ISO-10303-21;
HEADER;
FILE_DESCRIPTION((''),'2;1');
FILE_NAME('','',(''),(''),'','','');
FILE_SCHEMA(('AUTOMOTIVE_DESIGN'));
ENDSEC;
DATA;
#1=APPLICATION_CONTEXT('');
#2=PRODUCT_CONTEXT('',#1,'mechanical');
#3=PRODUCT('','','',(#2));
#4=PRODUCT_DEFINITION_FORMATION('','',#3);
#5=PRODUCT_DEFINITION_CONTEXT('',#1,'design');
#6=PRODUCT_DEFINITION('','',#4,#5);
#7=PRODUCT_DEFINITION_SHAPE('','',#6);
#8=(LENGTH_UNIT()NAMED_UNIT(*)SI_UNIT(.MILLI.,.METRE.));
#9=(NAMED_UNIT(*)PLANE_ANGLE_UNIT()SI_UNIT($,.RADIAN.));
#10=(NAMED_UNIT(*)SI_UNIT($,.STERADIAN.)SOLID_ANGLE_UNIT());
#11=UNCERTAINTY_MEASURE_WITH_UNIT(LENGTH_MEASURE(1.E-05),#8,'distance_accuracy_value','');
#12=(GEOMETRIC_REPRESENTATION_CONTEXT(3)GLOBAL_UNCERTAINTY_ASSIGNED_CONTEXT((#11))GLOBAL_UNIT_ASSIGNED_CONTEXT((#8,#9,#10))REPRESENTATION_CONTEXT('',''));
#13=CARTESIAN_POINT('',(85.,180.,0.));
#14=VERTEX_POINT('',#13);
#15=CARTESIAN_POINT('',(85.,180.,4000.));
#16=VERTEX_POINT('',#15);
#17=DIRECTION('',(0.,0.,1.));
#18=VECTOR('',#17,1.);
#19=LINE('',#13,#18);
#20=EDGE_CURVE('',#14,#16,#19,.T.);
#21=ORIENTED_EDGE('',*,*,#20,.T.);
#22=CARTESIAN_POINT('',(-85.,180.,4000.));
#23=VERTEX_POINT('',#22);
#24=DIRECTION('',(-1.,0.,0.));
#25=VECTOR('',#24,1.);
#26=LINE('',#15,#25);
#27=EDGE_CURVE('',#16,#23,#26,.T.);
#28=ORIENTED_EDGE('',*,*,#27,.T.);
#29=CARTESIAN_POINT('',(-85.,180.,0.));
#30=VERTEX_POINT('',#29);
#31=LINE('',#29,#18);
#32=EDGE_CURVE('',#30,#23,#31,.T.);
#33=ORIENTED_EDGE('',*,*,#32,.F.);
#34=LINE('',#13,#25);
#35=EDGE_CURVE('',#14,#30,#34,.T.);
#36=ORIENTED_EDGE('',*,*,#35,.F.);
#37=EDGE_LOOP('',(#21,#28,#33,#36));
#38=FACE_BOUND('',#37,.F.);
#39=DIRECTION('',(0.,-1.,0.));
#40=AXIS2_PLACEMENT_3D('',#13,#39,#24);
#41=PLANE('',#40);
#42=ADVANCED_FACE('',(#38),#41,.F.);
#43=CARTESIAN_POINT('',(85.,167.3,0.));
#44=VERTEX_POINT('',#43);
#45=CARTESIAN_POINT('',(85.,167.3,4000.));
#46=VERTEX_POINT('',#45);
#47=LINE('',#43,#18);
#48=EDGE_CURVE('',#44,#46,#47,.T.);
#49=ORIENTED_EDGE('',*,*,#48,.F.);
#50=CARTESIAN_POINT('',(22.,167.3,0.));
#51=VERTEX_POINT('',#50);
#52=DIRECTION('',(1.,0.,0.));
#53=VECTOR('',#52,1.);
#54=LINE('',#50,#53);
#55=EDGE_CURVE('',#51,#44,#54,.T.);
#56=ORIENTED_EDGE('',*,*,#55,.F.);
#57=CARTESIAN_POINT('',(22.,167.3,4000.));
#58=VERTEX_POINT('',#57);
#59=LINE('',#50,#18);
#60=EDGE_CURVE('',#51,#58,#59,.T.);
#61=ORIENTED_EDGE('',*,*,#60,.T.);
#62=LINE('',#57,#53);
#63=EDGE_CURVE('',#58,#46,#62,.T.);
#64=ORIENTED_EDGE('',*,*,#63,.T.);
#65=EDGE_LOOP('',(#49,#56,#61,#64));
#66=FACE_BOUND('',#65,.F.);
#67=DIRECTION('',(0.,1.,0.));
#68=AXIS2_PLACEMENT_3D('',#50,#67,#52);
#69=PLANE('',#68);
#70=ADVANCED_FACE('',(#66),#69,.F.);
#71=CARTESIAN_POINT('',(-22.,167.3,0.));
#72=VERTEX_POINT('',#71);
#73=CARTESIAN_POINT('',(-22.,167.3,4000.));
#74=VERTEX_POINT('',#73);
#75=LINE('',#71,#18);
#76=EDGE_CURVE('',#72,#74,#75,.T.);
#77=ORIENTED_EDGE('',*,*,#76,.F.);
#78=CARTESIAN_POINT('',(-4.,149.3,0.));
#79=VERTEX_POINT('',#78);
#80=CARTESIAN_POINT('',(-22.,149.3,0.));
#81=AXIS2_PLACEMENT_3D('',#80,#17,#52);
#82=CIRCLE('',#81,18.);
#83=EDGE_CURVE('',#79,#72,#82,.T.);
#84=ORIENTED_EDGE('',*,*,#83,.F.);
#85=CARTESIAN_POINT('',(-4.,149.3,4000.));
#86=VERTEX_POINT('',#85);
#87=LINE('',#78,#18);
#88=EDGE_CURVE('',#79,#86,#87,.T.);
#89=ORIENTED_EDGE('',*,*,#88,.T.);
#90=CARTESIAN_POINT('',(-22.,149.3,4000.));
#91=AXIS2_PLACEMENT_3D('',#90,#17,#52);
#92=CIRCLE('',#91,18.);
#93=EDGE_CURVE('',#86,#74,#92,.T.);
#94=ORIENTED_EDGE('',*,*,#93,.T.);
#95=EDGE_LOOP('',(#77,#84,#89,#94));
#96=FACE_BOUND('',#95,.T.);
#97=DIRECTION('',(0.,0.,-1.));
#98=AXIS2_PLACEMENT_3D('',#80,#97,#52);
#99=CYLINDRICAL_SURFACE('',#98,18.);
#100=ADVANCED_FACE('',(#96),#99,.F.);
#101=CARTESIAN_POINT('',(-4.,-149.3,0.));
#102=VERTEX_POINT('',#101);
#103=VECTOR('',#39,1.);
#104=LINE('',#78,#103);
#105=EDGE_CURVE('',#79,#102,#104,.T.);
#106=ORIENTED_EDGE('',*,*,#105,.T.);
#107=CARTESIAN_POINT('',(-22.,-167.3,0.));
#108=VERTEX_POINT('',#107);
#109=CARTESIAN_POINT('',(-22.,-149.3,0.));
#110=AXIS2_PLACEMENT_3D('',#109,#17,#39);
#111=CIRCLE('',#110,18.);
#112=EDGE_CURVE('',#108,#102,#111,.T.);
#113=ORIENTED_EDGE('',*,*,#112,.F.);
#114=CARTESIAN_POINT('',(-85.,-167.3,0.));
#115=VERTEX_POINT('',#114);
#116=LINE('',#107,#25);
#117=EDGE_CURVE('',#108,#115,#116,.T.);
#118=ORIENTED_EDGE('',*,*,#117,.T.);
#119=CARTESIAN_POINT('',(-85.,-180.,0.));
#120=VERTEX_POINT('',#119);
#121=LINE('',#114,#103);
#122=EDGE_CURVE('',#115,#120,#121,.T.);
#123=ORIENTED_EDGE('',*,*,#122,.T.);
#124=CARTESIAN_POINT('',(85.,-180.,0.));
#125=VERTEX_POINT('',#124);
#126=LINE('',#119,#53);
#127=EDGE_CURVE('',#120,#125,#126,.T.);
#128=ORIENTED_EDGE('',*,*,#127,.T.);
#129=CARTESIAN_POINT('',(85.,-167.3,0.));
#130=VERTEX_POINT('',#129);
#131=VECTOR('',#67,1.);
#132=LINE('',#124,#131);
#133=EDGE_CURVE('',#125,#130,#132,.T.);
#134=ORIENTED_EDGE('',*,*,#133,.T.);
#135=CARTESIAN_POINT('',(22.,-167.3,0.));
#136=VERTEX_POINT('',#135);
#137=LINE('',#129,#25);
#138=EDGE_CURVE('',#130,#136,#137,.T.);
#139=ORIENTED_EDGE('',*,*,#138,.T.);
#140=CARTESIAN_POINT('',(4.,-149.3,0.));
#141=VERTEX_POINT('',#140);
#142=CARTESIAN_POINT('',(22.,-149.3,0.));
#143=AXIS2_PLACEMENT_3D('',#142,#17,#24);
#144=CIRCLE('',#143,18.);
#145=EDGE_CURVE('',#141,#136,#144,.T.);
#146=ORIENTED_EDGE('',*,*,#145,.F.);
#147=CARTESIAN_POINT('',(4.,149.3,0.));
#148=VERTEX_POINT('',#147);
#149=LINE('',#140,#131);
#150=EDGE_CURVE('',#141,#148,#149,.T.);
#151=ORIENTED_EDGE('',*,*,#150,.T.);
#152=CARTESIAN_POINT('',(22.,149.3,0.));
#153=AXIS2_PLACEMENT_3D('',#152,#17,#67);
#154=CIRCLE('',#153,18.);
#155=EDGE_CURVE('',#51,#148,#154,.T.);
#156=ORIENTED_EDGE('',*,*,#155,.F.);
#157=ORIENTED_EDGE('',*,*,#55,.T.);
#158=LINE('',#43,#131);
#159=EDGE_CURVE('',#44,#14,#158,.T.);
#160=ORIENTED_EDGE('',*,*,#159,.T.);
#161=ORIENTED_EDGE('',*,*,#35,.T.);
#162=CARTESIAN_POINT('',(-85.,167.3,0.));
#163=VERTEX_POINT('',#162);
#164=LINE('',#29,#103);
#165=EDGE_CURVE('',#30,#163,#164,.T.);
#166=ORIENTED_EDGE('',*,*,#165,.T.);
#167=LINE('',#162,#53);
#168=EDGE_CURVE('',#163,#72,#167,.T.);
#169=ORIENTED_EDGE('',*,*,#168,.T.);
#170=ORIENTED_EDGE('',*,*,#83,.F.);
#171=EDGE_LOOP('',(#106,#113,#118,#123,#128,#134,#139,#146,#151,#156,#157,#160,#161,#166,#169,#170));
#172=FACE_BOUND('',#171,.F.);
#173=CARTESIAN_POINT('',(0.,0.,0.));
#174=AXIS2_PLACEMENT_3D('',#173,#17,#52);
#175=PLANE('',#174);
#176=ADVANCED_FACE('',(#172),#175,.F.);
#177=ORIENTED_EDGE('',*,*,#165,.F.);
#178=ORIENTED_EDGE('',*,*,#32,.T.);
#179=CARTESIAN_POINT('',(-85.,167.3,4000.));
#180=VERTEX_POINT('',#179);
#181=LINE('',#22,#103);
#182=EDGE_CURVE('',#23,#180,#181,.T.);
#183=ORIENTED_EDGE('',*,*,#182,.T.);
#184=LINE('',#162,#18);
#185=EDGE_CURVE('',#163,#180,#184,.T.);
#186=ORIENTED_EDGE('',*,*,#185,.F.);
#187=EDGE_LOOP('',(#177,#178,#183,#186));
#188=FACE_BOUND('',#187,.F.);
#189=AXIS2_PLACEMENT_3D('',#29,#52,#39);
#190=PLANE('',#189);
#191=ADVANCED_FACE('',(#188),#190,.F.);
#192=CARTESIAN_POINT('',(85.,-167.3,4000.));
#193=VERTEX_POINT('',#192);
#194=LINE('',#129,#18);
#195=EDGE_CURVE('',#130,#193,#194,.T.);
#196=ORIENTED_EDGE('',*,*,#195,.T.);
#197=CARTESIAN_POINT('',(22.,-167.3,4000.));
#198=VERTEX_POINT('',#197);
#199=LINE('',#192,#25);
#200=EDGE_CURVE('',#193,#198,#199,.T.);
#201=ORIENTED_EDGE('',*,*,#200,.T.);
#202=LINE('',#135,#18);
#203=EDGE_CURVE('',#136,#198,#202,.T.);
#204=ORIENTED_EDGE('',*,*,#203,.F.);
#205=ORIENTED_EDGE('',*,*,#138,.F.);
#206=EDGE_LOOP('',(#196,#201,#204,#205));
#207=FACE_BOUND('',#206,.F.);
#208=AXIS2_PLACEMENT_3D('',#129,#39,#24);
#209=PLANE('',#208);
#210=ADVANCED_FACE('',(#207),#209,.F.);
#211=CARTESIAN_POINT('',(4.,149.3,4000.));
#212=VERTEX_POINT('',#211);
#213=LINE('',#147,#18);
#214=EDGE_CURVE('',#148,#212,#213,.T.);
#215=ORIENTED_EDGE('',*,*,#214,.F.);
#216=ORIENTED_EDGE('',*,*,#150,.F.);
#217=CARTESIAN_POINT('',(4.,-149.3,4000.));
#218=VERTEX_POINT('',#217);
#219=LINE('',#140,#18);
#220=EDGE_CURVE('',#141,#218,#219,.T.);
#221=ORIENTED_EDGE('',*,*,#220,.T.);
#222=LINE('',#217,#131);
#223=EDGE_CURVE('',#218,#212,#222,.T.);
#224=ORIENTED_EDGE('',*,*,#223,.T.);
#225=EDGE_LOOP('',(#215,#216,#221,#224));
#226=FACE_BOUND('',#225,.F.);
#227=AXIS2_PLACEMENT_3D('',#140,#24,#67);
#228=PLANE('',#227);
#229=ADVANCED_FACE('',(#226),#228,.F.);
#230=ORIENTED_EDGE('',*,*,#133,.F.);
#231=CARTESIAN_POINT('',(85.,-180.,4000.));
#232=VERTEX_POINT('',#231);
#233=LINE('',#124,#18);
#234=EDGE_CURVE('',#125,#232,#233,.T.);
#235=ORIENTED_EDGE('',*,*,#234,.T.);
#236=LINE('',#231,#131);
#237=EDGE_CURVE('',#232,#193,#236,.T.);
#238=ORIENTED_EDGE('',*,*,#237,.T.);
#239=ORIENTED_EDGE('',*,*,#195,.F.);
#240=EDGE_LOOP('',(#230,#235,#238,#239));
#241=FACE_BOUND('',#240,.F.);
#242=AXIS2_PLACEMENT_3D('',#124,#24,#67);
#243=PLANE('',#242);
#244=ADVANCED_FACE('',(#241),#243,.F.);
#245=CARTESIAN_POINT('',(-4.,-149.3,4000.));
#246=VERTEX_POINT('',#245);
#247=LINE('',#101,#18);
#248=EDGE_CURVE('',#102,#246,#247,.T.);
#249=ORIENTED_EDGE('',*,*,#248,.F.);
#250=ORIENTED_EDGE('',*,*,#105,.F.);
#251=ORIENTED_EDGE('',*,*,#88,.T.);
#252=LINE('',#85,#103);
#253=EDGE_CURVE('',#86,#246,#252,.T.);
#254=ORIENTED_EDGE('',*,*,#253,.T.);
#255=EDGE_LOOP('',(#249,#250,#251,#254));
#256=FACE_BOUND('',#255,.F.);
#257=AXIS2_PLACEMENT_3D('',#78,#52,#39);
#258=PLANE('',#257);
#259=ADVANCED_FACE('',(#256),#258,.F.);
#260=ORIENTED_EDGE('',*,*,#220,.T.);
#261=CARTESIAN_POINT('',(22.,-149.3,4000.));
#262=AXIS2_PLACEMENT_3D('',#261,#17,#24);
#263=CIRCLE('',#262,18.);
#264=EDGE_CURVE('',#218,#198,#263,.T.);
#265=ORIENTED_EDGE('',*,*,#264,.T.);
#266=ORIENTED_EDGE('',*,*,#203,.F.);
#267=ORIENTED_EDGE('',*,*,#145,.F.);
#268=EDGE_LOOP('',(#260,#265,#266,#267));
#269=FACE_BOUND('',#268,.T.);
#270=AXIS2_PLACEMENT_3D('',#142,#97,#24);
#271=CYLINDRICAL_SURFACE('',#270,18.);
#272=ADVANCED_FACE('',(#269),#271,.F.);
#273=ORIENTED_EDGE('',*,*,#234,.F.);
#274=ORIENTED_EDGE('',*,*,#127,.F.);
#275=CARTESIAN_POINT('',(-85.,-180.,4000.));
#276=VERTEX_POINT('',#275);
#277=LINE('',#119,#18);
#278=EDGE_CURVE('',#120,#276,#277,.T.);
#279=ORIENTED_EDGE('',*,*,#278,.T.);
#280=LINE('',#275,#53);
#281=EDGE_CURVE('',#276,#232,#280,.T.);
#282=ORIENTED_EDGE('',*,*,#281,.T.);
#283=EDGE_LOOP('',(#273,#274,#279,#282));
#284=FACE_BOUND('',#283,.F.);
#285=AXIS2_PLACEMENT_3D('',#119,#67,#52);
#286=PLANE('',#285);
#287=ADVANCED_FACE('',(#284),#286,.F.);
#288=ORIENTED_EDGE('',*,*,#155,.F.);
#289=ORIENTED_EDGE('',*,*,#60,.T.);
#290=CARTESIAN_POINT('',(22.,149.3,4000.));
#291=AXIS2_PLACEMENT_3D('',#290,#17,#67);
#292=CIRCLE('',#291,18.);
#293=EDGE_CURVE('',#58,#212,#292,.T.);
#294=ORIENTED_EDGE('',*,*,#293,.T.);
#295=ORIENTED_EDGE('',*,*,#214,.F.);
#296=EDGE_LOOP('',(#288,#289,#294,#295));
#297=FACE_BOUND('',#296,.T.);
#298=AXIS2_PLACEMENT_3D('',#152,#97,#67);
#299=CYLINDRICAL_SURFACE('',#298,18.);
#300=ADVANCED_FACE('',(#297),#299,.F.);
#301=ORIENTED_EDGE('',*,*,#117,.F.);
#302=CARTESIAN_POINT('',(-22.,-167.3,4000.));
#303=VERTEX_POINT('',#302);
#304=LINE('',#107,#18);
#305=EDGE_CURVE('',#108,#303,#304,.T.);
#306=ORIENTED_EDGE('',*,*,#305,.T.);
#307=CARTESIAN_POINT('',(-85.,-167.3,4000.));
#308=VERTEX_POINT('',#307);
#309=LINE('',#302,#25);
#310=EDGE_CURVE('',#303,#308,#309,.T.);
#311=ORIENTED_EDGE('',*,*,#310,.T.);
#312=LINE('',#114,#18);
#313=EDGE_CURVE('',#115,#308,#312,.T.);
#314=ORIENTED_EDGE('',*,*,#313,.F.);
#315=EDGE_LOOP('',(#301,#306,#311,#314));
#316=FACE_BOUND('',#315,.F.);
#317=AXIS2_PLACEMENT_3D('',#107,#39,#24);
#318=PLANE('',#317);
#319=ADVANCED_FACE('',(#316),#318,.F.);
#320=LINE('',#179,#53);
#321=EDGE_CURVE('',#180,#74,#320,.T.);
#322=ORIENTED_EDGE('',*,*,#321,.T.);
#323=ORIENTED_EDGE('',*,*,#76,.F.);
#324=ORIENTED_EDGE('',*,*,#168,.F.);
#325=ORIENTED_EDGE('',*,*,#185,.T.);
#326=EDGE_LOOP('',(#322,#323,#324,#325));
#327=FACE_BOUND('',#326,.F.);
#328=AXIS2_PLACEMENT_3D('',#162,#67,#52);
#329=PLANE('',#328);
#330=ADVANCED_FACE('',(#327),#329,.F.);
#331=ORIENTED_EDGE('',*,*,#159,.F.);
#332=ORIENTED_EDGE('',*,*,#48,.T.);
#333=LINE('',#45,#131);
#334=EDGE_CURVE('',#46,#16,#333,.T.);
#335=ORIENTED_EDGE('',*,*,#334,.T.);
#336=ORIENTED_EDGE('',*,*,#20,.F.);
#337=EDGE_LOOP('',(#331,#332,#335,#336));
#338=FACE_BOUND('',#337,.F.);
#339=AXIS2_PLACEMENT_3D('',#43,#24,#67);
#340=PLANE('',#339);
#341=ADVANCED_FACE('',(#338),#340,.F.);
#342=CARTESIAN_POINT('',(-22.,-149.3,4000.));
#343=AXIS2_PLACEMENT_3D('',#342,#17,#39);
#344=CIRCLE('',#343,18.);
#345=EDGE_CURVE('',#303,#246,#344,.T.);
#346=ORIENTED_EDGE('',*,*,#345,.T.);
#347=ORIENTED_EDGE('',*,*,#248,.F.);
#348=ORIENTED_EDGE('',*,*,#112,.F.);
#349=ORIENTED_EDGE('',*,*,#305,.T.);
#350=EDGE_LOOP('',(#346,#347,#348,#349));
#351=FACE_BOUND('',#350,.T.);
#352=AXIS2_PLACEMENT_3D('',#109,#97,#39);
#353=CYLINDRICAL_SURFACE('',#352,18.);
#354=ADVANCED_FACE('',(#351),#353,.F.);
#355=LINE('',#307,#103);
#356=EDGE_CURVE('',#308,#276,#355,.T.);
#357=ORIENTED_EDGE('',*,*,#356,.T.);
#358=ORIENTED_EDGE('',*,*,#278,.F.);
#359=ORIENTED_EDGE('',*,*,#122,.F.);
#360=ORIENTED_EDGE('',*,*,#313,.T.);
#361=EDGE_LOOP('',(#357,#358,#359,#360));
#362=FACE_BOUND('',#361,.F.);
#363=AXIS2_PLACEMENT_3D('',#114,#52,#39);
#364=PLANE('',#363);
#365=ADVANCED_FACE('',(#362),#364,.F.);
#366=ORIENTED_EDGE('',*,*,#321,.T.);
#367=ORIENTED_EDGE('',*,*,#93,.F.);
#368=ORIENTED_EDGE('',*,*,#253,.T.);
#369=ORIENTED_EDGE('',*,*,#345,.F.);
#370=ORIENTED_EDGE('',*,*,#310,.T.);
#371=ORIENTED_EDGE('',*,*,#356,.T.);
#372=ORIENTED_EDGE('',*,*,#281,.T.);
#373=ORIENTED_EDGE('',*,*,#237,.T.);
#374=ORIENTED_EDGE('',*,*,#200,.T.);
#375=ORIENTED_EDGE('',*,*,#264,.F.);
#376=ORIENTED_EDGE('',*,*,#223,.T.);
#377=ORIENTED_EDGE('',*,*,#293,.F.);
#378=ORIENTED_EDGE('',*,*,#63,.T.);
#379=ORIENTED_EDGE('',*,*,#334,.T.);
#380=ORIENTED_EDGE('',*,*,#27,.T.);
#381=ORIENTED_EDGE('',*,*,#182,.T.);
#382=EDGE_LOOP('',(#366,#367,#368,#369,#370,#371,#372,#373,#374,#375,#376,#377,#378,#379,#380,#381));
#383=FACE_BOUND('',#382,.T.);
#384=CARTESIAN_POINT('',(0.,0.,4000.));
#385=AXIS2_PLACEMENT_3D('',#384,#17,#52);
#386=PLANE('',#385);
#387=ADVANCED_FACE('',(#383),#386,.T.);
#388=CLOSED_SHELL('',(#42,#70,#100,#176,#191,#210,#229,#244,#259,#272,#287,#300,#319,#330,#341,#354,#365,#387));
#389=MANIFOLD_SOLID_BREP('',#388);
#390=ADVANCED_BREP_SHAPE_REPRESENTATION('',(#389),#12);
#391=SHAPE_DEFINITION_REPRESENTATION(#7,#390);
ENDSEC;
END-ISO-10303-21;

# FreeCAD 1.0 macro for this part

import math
import FreeCAD as App
import Part
import Sketcher
from FreeCAD import Vector

doc = App.newDocument("Part")
params = doc.addObject("Spreadsheet::Sheet", "Params")
for row, (alias, value) in enumerate([
    ("sketch1_radius", "18 mm"),
    ("sketch1_width", "170 mm"),
    ("sketch1_height", "12.7 mm"),
    ("pad1_length", "4000 mm"),
], start=1):
    params.set(f"A{row}", alias)
    params.set(f"B{row}", "=" + value)
    params.setAlias(f"B{row}", alias)

body = doc.addObject("PartDesign::Body", "Body")

# Sketch on XY plane
sketch1 = body.newObject("Sketcher::SketchObject", "Sketch")
sketch1.AttachmentSupport = (doc.getObject("XY_Plane"), [""])
sketch1.MapMode = "FlatFace"
sketch1.addGeometry(Part.LineSegment(Vector(-85, 180, 0), Vector(-85, 167, 0)), False)
sketch1.addGeometry(Part.LineSegment(Vector(-85, 167, 0), Vector(-22, 167, 0)), False)
sketch1.addGeometry(Part.ArcOfCircle(Part.Circle(Vector(-22, 149, 0), Vector(0, 0, 1), 18), math.radians(0), math.radians(90)), False)
sketch1.addGeometry(Part.LineSegment(Vector(-4, 149, 0), Vector(-4, -149, 0)), False)
sketch1.addGeometry(Part.ArcOfCircle(Part.Circle(Vector(-22, -149, 0), Vector(0, 0, 1), 18), math.radians(-90), math.radians(0)), False)
sketch1.addGeometry(Part.LineSegment(Vector(-22, -167, 0), Vector(-85, -167, 0)), False)
sketch1.addGeometry(Part.LineSegment(Vector(-85, -167, 0), Vector(-85, -180, 0)), False)
sketch1.addGeometry(Part.LineSegment(Vector(-85, -180, 0), Vector(85, -180, 0)), False)
sketch1.addGeometry(Part.LineSegment(Vector(85, -180, 0), Vector(85, -167, 0)), False)
sketch1.addGeometry(Part.LineSegment(Vector(85, -167, 0), Vector(22, -167, 0)), False)
sketch1.addGeometry(Part.ArcOfCircle(Part.Circle(Vector(22, -149, 0), Vector(0, 0, 1), 18), math.radians(180), math.radians(270)), False)
sketch1.addGeometry(Part.LineSegment(Vector(4, -149, 0), Vector(4, 149, 0)), False)
sketch1.addGeometry(Part.ArcOfCircle(Part.Circle(Vector(22, 149, 0), Vector(0, 0, 1), 18), math.radians(90), math.radians(180)), False)
sketch1.addGeometry(Part.LineSegment(Vector(22, 167, 0), Vector(85, 167, 0)), False)
sketch1.addGeometry(Part.LineSegment(Vector(85, 167, 0), Vector(85, 180, 0)), False)
sketch1.addGeometry(Part.LineSegment(Vector(85, 180, 0), Vector(-85, 180, 0)), False)
sketch1.addConstraint(Sketcher.Constraint("Coincident", 0, 2, 1, 1))
sketch1.addConstraint(Sketcher.Constraint("Tangent", 1, 2, 2, 2))
sketch1.addConstraint(Sketcher.Constraint("Tangent", 2, 1, 3, 1))
sketch1.addConstraint(Sketcher.Constraint("Tangent", 3, 2, 4, 2))
sketch1.addConstraint(Sketcher.Constraint("Tangent", 4, 1, 5, 1))
sketch1.addConstraint(Sketcher.Constraint("Coincident", 5, 2, 6, 1))
sketch1.addConstraint(Sketcher.Constraint("Coincident", 6, 2, 7, 1))
sketch1.addConstraint(Sketcher.Constraint("Coincident", 7, 2, 8, 1))
sketch1.addConstraint(Sketcher.Constraint("Coincident", 8, 2, 9, 1))
sketch1.addConstraint(Sketcher.Constraint("Tangent", 9, 2, 10, 2))
sketch1.addConstraint(Sketcher.Constraint("Tangent", 10, 1, 11, 1))
sketch1.addConstraint(Sketcher.Constraint("Tangent", 11, 2, 12, 2))
sketch1.addConstraint(Sketcher.Constraint("Tangent", 12, 1, 13, 1))
sketch1.addConstraint(Sketcher.Constraint("Coincident", 13, 2, 14, 1))
sketch1.addConstraint(Sketcher.Constraint("Coincident", 14, 2, 15, 1))
sketch1.addConstraint(Sketcher.Constraint("Coincident", 15, 2, 0, 1))
sketch1.addConstraint(Sketcher.Constraint("Vertical", 0))
sketch1.addConstraint(Sketcher.Constraint("Horizontal", 1))
sketch1.addConstraint(Sketcher.Constraint("Vertical", 3))
sketch1.addConstraint(Sketcher.Constraint("Horizontal", 5))
sketch1.addConstraint(Sketcher.Constraint("Vertical", 6))
sketch1.addConstraint(Sketcher.Constraint("Horizontal", 7))
sketch1.addConstraint(Sketcher.Constraint("Vertical", 8))
sketch1.addConstraint(Sketcher.Constraint("Horizontal", 9))
sketch1.addConstraint(Sketcher.Constraint("Vertical", 11))
sketch1.addConstraint(Sketcher.Constraint("Horizontal", 13))
sketch1.addConstraint(Sketcher.Constraint("Vertical", 14))
sketch1.addConstraint(Sketcher.Constraint("Horizontal", 15))
sketch1.addConstraint(Sketcher.Constraint("Equal", 2, 4))
sketch1.addConstraint(Sketcher.Constraint("Equal", 4, 10))
sketch1.addConstraint(Sketcher.Constraint("Equal", 10, 12))
sketch1.addConstraint(Sketcher.Constraint("Symmetric", 2, 3, 10, 3, -1, 1))
sketch1.addConstraint(Sketcher.Constraint("Symmetric", 5, 2, 13, 2, -1, 1))
sketch1.addConstraint(Sketcher.Constraint("Symmetric", 7, 2, 15, 2, -1, 1))
sketch1.addConstraint(Sketcher.Constraint("Symmetric", 5, 2, 8, 2, -2))
sketch1.addConstraint(Sketcher.Constraint("Radius", 2, 18.0))
sketch1.addConstraint(Sketcher.Constraint("DistanceX", 7, 1, 7, 2, 170.0))
sketch1.addConstraint(Sketcher.Constraint("DistanceY", 0, 2, 0, 1, 12.7))
sketch1.addConstraint(Sketcher.Constraint("DistanceY", 6, 2, -1, 1, 180.0))
sketch1.addConstraint(Sketcher.Constraint("DistanceX", 3, 2, 10, 1, 8.0))
sketch1.setExpression("Constraints[35]", "Params.sketch1_radius")
sketch1.setExpression("Constraints[36]", "Params.sketch1_width")
sketch1.setExpression("Constraints[37]", "Params.sketch1_height")
pad1 = body.newObject("PartDesign::Pad", "Pad")
pad1.Profile = sketch1
pad1.setExpression("Length", "Params.pad1_length")

doc.recompute()
